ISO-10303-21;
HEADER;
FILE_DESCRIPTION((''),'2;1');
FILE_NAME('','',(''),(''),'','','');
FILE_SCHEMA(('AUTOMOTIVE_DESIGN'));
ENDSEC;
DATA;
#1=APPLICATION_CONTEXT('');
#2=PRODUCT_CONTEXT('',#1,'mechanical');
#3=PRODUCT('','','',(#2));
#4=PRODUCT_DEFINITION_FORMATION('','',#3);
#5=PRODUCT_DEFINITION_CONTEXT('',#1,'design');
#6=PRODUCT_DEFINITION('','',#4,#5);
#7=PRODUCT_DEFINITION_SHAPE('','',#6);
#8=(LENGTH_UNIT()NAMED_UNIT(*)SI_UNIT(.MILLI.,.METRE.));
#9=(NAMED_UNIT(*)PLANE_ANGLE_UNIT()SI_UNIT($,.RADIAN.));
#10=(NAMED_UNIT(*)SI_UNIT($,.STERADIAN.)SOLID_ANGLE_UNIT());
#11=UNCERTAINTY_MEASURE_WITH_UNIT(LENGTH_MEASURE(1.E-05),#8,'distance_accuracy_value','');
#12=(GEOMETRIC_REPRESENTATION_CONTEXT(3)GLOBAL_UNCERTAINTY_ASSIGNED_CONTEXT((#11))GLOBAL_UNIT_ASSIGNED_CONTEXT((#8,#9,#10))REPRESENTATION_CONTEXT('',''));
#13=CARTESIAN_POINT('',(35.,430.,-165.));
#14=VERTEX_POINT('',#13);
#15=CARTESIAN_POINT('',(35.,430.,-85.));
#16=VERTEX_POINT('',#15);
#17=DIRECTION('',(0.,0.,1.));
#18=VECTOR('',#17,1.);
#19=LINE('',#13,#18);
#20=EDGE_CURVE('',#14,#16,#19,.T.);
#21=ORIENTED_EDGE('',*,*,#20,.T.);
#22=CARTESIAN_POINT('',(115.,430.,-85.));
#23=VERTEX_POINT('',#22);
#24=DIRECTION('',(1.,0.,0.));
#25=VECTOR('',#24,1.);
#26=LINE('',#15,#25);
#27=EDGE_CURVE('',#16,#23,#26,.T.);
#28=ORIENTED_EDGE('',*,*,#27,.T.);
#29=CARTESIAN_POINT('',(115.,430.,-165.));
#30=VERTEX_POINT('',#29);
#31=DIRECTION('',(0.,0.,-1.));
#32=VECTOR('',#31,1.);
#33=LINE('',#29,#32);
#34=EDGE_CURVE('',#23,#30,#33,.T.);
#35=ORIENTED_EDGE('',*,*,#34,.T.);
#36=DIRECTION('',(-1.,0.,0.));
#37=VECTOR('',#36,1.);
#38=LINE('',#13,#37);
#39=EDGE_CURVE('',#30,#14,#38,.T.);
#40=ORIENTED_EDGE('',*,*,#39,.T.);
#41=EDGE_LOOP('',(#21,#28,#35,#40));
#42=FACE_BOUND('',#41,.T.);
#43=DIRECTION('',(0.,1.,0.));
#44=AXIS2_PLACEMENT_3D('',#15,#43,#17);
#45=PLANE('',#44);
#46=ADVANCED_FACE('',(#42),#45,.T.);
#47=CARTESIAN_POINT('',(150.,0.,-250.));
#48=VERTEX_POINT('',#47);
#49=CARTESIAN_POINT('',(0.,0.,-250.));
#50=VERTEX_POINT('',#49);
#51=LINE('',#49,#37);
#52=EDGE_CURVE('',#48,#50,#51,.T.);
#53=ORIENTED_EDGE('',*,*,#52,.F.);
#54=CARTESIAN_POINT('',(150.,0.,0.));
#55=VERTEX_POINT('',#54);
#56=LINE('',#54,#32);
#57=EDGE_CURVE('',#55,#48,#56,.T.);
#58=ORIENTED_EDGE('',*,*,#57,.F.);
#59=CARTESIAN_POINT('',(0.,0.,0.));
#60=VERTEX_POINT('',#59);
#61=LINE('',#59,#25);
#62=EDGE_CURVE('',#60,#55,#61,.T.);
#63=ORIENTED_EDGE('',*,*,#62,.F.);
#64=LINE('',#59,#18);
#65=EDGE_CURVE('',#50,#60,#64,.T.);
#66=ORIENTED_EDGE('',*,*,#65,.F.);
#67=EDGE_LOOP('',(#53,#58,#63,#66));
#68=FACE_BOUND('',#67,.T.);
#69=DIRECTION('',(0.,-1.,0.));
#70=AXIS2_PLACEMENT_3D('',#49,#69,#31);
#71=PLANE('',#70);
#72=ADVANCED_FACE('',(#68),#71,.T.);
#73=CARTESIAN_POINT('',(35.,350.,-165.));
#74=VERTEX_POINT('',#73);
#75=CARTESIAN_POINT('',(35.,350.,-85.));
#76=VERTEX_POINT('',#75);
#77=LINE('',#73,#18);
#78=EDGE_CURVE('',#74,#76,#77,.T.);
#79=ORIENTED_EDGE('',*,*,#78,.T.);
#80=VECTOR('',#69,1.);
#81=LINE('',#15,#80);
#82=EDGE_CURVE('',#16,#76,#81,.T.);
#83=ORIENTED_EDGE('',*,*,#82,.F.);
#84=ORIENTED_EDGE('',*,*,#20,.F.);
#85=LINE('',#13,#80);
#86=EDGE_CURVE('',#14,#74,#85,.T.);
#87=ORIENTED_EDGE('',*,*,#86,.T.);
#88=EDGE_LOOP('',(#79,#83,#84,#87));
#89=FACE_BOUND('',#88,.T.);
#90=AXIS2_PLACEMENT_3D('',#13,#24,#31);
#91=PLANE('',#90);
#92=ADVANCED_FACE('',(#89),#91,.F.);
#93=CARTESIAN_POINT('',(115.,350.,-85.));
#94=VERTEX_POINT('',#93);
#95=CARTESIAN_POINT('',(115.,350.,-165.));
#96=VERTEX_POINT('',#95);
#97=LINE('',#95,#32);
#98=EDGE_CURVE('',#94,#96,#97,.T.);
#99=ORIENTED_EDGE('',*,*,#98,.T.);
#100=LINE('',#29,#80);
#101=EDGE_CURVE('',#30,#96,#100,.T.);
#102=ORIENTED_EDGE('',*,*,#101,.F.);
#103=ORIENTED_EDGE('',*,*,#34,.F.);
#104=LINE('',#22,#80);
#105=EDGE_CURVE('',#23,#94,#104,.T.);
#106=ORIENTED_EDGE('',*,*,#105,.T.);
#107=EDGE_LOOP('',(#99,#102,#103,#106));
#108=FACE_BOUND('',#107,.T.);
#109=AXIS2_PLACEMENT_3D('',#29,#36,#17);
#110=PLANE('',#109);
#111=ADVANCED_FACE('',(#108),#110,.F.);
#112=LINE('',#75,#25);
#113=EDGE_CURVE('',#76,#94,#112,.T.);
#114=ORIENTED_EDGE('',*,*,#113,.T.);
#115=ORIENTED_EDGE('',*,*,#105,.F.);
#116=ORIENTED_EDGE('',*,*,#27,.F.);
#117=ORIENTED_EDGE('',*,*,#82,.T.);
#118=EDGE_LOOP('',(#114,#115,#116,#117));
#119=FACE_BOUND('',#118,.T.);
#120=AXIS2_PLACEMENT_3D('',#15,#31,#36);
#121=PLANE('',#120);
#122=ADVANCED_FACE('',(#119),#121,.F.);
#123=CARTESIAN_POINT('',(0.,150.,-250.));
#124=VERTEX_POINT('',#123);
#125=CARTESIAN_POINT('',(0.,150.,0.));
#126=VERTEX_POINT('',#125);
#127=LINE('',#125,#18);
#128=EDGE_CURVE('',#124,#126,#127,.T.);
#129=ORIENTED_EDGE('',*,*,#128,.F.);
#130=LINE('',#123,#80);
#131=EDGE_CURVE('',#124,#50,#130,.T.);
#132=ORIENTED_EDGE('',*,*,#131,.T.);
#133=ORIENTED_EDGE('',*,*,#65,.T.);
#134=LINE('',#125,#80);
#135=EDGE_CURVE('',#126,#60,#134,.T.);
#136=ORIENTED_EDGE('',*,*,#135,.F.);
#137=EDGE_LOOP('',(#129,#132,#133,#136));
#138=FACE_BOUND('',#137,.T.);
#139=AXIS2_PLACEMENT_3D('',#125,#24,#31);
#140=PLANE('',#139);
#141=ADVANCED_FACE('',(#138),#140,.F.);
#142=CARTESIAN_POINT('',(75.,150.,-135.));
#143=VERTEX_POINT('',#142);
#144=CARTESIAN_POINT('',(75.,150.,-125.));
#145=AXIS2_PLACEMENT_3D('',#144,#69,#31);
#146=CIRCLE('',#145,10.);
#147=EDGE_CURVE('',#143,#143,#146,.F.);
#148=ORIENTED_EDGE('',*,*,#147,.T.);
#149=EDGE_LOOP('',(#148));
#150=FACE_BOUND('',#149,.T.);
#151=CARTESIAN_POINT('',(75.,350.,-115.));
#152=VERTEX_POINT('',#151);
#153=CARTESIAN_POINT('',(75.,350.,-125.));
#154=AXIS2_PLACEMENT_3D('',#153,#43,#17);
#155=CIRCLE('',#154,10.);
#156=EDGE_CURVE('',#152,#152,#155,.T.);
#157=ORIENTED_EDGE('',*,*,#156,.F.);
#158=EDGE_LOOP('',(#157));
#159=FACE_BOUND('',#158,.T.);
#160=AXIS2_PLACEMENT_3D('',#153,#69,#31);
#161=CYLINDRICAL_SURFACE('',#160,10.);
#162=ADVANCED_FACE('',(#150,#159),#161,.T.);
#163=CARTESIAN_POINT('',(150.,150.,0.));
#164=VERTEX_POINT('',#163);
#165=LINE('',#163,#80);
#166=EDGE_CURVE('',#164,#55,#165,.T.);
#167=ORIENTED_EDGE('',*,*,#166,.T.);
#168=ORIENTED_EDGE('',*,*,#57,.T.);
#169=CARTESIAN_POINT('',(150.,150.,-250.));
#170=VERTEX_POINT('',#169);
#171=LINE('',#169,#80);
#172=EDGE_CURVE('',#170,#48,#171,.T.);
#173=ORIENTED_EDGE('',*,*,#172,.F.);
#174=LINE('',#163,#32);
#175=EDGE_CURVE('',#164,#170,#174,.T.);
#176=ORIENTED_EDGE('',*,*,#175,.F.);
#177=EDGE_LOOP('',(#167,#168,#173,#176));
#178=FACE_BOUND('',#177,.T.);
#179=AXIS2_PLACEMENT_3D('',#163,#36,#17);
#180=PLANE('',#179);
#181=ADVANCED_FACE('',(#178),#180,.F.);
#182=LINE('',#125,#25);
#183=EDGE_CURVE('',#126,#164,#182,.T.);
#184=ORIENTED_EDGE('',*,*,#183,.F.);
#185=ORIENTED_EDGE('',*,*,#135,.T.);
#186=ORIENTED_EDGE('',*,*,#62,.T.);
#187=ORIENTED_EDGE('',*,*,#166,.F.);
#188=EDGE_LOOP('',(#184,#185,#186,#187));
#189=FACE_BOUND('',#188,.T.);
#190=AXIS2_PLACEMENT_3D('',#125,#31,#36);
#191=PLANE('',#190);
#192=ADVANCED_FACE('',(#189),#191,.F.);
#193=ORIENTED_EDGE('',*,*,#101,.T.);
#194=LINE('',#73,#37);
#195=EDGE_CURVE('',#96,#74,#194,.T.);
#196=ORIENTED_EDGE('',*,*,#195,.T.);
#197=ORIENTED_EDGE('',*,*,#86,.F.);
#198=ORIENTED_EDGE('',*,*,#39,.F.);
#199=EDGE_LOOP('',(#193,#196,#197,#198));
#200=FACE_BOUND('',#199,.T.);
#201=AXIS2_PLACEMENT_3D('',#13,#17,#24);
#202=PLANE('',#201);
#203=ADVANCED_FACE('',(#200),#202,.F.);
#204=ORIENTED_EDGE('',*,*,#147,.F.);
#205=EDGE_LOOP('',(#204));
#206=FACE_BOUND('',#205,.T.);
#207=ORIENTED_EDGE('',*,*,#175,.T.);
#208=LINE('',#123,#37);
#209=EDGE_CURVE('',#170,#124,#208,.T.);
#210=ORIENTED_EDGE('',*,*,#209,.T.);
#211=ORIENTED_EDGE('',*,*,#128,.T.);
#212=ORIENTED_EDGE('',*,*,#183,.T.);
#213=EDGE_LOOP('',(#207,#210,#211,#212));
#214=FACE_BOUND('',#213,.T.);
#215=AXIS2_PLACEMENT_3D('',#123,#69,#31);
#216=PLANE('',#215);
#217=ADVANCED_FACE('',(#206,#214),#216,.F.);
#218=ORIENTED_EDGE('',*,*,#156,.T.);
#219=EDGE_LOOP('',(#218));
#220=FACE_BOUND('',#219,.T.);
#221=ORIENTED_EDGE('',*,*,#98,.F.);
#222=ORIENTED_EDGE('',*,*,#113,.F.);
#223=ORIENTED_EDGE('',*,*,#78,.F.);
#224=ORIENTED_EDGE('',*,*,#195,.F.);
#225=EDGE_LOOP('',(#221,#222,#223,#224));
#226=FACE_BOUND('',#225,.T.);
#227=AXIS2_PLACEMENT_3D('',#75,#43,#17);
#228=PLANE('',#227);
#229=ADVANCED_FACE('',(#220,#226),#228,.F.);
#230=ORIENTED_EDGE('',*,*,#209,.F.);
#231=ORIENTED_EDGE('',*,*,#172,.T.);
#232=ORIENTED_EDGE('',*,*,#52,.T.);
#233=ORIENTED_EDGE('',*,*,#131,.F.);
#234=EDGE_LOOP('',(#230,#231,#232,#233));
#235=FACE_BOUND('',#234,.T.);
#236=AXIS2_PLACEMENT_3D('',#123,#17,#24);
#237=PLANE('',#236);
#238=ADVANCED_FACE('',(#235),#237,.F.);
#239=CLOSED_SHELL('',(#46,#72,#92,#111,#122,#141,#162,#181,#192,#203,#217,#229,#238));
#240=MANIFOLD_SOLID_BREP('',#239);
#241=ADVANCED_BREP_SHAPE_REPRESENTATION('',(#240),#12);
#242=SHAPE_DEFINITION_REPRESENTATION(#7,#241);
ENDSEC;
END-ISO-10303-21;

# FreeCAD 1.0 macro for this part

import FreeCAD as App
import Part
import Sketcher

V = App.Vector
Q = App.Units.Quantity


def add_polygon(sketch, points):
    """Adds a closed chain of lines whose ends are joined by coincident constraints."""
    first, n = sketch.GeometryCount, len(points)
    for a, b in zip(points, points[1:] + points[:1]):
        sketch.addGeometry(Part.LineSegment(App.Vector(*a, 0), App.Vector(*b, 0)), False)
    for i in range(n):
        sketch.addConstraint(Sketcher.Constraint("Coincident", first + i, 2, first + (i + 1) % n, 1))

doc = App.newDocument("Part")
body = doc.addObject("PartDesign::Body", "Body")

# Sketch on XZ plane
sketch1 = body.newObject("Sketcher::SketchObject", "Sketch")
sketch1.AttachmentSupport = (doc.getObject("XZ_Plane"), [""])
sketch1.MapMode = "FlatFace"
add_polygon(sketch1, [(0, -250), (0, 0), (150, 0), (150, -250)])  # lines 0-3
sketch1.addConstraint(Sketcher.Constraint("Vertical", 0))
sketch1.addConstraint(Sketcher.Constraint("Horizontal", 1))
sketch1.addConstraint(Sketcher.Constraint("Vertical", 2))
sketch1.addConstraint(Sketcher.Constraint("Horizontal", 3))
sketch1.addConstraint(Sketcher.Constraint("Coincident", 0, 2, -1, 1))
sketch1.addConstraint(Sketcher.Constraint("DistanceX", 1, 1, 1, 2, Q("150 mm")))
sketch1.addConstraint(Sketcher.Constraint("DistanceY", 0, 1, 0, 2, Q("250 mm")))
pad1 = body.newObject("PartDesign::Pad", "Pad")
pad1.Profile = sketch1
pad1.Length = 150
pad1.Reversed = True

# Sketch on XZ plane
sketch2 = body.newObject("Sketcher::SketchObject", "Sketch001")
sketch2.AttachmentSupport = (doc.getObject("XZ_Plane"), [""])
sketch2.MapMode = "FlatFace"
sketch2.AttachmentOffset = App.Placement(V(0, 0, -150), App.Rotation())
sketch2.addGeometry(Part.Circle(V(75, -125, 0), V(0, 0, 1), 10), False)
sketch2.addConstraint(Sketcher.Constraint("Diameter", 0, Q("20 mm")))
sketch2.addConstraint(Sketcher.Constraint("DistanceX", -1, 1, 0, 3, Q("75 mm")))
sketch2.addConstraint(Sketcher.Constraint("DistanceY", 0, 3, -1, 1, Q("125 mm")))
pad2 = body.newObject("PartDesign::Pad", "Pad001")
pad2.Profile = sketch2
pad2.Length = 200
pad2.Reversed = True

# Sketch on XZ plane
sketch3 = body.newObject("Sketcher::SketchObject", "Sketch002")
sketch3.AttachmentSupport = (doc.getObject("XZ_Plane"), [""])
sketch3.MapMode = "FlatFace"
sketch3.AttachmentOffset = App.Placement(V(0, 0, -350), App.Rotation())
add_polygon(sketch3, [(35, -165), (35, -85), (115, -85), (115, -165)])  # lines 0-3
sketch3.addConstraint(Sketcher.Constraint("Vertical", 0))
sketch3.addConstraint(Sketcher.Constraint("Horizontal", 1))
sketch3.addConstraint(Sketcher.Constraint("Vertical", 2))
sketch3.addConstraint(Sketcher.Constraint("Horizontal", 3))
sketch3.addConstraint(Sketcher.Constraint("Equal", 3, 0))
sketch3.addConstraint(Sketcher.Constraint("DistanceX", 1, 1, 1, 2, Q("80 mm")))
sketch3.addConstraint(Sketcher.Constraint("DistanceX", -1, 1, 0, 2, Q("35 mm")))
sketch3.addConstraint(Sketcher.Constraint("DistanceY", 0, 2, -1, 1, Q("85 mm")))
pad3 = body.newObject("PartDesign::Pad", "Pad002")
pad3.Profile = sketch3
pad3.Length = 80
pad3.Reversed = True

doc.recompute()
